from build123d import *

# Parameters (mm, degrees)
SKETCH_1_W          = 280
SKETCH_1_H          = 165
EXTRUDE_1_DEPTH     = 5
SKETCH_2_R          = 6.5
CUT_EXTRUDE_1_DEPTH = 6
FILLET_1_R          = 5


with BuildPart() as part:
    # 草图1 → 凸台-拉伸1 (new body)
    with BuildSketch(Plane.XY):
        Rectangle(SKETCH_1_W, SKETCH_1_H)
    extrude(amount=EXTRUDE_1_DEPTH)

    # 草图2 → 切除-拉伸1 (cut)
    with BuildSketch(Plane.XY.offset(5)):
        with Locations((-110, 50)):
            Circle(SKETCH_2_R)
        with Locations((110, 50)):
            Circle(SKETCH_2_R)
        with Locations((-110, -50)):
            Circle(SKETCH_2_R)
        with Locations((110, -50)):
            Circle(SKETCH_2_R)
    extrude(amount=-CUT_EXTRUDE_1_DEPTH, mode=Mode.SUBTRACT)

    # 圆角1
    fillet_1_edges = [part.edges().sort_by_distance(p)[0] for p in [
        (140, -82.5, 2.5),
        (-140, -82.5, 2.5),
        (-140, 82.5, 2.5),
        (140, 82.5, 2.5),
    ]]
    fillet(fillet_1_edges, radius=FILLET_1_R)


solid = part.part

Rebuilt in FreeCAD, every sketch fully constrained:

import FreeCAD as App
import Part
import Sketcher

V = App.Vector
Q = App.Units.Quantity


def edges_at(feature, points):
    """Names of the edges that pass closest to the given points."""
    edges = feature.Shape.Edges
    near = lambda p: min(range(len(edges)), key=lambda i: edges[i].distToShape(Part.Vertex(*p))[0])
    return sorted({f"Edge{near(p) + 1}" for p in points})


def add_polygon(sketch, points):
    """Adds a closed chain of lines whose ends are joined by coincident constraints."""
    first, n = sketch.GeometryCount, len(points)
    for a, b in zip(points, points[1:] + points[:1]):
        sketch.addGeometry(Part.LineSegment(App.Vector(*a, 0), App.Vector(*b, 0)), False)
    for i in range(n):
        sketch.addConstraint(Sketcher.Constraint("Coincident", first + i, 2, first + (i + 1) % n, 1))

doc = App.newDocument("Part")
body = doc.addObject("PartDesign::Body", "Body")

sketch1 = doc.addObject("Sketcher::SketchObject", "Sketch")
body.addObject(sketch1)
sketch1.AttachmentSupport = (doc.XY_Plane, [""])
sketch1.MapMode = "FlatFace"
add_polygon(sketch1, [(-140, 82), (-140, -82), (140, -82), (140, 82)])
sketch1.addConstraint(Sketcher.Constraint("Vertical", 0))
sketch1.addConstraint(Sketcher.Constraint("Horizontal", 1))
sketch1.addConstraint(Sketcher.Constraint("Vertical", 2))
sketch1.addConstraint(Sketcher.Constraint("Horizontal", 3))
sketch1.addConstraint(Sketcher.Constraint("Symmetric", 0, 2, 2, 2, -1, 1))
sketch1.addConstraint(Sketcher.Constraint("DistanceX", 1, 1, 1, 2, Q("280 mm")))
sketch1.addConstraint(Sketcher.Constraint("DistanceY", 0, 2, 0, 1, Q("165 mm")))
pad1 = doc.addObject("PartDesign::Pad", "Pad")
body.addObject(pad1)
pad1.Profile = sketch1
pad1.Length = 5

sketch2 = doc.addObject("Sketcher::SketchObject", "Sketch001")
body.addObject(sketch2)
sketch2.AttachmentSupport = (doc.XY_Plane, [""])
sketch2.MapMode = "FlatFace"
sketch2.AttachmentOffset = App.Placement(V(0, 0, 5), App.Rotation())
sketch2.addGeometry(Part.Circle(V(-110, 50, 0), V(0, 0, 1), 6), False)
sketch2.addGeometry(Part.Circle(V(110, 50, 0), V(0, 0, 1), 6), False)
sketch2.addGeometry(Part.Circle(V(-110, -50, 0), V(0, 0, 1), 6), False)
sketch2.addGeometry(Part.Circle(V(110, -50, 0), V(0, 0, 1), 6), False)
sketch2.addConstraint(Sketcher.Constraint("Equal", 0, 1))
sketch2.addConstraint(Sketcher.Constraint("Equal", 1, 2))
sketch2.addConstraint(Sketcher.Constraint("Equal", 2, 3))
sketch2.addConstraint(Sketcher.Constraint("Symmetric", 1, 3, 2, 3, -1, 1))
sketch2.addConstraint(Sketcher.Constraint("Symmetric", 0, 3, 3, 3, -1, 1))
sketch2.addConstraint(Sketcher.Constraint("Symmetric", 0, 3, 1, 3, -2))
sketch2.addConstraint(Sketcher.Constraint("Diameter", 0, Q("13 mm")))
sketch2.addConstraint(Sketcher.Constraint("DistanceX", 0, 3, -1, 1, Q("110 mm")))
sketch2.addConstraint(Sketcher.Constraint("DistanceY", -1, 1, 0, 3, Q("50 mm")))
pocket1 = doc.addObject("PartDesign::Pocket", "Pocket")
body.addObject(pocket1)
pocket1.Profile = sketch2
pocket1.Length = 6
doc.recompute()

fillet = doc.addObject("PartDesign::Fillet", "Fillet")
body.addObject(fillet)
fillet.Base = (pocket1, edges_at(pocket1, [
    (140, -82.5, 2.5),
    (-140, -82.5, 2.5),
    (-140, 82.5, 2.5),
    (140, 82.5, 2.5),
]))
fillet.Radius = 5

doc.recompute()
